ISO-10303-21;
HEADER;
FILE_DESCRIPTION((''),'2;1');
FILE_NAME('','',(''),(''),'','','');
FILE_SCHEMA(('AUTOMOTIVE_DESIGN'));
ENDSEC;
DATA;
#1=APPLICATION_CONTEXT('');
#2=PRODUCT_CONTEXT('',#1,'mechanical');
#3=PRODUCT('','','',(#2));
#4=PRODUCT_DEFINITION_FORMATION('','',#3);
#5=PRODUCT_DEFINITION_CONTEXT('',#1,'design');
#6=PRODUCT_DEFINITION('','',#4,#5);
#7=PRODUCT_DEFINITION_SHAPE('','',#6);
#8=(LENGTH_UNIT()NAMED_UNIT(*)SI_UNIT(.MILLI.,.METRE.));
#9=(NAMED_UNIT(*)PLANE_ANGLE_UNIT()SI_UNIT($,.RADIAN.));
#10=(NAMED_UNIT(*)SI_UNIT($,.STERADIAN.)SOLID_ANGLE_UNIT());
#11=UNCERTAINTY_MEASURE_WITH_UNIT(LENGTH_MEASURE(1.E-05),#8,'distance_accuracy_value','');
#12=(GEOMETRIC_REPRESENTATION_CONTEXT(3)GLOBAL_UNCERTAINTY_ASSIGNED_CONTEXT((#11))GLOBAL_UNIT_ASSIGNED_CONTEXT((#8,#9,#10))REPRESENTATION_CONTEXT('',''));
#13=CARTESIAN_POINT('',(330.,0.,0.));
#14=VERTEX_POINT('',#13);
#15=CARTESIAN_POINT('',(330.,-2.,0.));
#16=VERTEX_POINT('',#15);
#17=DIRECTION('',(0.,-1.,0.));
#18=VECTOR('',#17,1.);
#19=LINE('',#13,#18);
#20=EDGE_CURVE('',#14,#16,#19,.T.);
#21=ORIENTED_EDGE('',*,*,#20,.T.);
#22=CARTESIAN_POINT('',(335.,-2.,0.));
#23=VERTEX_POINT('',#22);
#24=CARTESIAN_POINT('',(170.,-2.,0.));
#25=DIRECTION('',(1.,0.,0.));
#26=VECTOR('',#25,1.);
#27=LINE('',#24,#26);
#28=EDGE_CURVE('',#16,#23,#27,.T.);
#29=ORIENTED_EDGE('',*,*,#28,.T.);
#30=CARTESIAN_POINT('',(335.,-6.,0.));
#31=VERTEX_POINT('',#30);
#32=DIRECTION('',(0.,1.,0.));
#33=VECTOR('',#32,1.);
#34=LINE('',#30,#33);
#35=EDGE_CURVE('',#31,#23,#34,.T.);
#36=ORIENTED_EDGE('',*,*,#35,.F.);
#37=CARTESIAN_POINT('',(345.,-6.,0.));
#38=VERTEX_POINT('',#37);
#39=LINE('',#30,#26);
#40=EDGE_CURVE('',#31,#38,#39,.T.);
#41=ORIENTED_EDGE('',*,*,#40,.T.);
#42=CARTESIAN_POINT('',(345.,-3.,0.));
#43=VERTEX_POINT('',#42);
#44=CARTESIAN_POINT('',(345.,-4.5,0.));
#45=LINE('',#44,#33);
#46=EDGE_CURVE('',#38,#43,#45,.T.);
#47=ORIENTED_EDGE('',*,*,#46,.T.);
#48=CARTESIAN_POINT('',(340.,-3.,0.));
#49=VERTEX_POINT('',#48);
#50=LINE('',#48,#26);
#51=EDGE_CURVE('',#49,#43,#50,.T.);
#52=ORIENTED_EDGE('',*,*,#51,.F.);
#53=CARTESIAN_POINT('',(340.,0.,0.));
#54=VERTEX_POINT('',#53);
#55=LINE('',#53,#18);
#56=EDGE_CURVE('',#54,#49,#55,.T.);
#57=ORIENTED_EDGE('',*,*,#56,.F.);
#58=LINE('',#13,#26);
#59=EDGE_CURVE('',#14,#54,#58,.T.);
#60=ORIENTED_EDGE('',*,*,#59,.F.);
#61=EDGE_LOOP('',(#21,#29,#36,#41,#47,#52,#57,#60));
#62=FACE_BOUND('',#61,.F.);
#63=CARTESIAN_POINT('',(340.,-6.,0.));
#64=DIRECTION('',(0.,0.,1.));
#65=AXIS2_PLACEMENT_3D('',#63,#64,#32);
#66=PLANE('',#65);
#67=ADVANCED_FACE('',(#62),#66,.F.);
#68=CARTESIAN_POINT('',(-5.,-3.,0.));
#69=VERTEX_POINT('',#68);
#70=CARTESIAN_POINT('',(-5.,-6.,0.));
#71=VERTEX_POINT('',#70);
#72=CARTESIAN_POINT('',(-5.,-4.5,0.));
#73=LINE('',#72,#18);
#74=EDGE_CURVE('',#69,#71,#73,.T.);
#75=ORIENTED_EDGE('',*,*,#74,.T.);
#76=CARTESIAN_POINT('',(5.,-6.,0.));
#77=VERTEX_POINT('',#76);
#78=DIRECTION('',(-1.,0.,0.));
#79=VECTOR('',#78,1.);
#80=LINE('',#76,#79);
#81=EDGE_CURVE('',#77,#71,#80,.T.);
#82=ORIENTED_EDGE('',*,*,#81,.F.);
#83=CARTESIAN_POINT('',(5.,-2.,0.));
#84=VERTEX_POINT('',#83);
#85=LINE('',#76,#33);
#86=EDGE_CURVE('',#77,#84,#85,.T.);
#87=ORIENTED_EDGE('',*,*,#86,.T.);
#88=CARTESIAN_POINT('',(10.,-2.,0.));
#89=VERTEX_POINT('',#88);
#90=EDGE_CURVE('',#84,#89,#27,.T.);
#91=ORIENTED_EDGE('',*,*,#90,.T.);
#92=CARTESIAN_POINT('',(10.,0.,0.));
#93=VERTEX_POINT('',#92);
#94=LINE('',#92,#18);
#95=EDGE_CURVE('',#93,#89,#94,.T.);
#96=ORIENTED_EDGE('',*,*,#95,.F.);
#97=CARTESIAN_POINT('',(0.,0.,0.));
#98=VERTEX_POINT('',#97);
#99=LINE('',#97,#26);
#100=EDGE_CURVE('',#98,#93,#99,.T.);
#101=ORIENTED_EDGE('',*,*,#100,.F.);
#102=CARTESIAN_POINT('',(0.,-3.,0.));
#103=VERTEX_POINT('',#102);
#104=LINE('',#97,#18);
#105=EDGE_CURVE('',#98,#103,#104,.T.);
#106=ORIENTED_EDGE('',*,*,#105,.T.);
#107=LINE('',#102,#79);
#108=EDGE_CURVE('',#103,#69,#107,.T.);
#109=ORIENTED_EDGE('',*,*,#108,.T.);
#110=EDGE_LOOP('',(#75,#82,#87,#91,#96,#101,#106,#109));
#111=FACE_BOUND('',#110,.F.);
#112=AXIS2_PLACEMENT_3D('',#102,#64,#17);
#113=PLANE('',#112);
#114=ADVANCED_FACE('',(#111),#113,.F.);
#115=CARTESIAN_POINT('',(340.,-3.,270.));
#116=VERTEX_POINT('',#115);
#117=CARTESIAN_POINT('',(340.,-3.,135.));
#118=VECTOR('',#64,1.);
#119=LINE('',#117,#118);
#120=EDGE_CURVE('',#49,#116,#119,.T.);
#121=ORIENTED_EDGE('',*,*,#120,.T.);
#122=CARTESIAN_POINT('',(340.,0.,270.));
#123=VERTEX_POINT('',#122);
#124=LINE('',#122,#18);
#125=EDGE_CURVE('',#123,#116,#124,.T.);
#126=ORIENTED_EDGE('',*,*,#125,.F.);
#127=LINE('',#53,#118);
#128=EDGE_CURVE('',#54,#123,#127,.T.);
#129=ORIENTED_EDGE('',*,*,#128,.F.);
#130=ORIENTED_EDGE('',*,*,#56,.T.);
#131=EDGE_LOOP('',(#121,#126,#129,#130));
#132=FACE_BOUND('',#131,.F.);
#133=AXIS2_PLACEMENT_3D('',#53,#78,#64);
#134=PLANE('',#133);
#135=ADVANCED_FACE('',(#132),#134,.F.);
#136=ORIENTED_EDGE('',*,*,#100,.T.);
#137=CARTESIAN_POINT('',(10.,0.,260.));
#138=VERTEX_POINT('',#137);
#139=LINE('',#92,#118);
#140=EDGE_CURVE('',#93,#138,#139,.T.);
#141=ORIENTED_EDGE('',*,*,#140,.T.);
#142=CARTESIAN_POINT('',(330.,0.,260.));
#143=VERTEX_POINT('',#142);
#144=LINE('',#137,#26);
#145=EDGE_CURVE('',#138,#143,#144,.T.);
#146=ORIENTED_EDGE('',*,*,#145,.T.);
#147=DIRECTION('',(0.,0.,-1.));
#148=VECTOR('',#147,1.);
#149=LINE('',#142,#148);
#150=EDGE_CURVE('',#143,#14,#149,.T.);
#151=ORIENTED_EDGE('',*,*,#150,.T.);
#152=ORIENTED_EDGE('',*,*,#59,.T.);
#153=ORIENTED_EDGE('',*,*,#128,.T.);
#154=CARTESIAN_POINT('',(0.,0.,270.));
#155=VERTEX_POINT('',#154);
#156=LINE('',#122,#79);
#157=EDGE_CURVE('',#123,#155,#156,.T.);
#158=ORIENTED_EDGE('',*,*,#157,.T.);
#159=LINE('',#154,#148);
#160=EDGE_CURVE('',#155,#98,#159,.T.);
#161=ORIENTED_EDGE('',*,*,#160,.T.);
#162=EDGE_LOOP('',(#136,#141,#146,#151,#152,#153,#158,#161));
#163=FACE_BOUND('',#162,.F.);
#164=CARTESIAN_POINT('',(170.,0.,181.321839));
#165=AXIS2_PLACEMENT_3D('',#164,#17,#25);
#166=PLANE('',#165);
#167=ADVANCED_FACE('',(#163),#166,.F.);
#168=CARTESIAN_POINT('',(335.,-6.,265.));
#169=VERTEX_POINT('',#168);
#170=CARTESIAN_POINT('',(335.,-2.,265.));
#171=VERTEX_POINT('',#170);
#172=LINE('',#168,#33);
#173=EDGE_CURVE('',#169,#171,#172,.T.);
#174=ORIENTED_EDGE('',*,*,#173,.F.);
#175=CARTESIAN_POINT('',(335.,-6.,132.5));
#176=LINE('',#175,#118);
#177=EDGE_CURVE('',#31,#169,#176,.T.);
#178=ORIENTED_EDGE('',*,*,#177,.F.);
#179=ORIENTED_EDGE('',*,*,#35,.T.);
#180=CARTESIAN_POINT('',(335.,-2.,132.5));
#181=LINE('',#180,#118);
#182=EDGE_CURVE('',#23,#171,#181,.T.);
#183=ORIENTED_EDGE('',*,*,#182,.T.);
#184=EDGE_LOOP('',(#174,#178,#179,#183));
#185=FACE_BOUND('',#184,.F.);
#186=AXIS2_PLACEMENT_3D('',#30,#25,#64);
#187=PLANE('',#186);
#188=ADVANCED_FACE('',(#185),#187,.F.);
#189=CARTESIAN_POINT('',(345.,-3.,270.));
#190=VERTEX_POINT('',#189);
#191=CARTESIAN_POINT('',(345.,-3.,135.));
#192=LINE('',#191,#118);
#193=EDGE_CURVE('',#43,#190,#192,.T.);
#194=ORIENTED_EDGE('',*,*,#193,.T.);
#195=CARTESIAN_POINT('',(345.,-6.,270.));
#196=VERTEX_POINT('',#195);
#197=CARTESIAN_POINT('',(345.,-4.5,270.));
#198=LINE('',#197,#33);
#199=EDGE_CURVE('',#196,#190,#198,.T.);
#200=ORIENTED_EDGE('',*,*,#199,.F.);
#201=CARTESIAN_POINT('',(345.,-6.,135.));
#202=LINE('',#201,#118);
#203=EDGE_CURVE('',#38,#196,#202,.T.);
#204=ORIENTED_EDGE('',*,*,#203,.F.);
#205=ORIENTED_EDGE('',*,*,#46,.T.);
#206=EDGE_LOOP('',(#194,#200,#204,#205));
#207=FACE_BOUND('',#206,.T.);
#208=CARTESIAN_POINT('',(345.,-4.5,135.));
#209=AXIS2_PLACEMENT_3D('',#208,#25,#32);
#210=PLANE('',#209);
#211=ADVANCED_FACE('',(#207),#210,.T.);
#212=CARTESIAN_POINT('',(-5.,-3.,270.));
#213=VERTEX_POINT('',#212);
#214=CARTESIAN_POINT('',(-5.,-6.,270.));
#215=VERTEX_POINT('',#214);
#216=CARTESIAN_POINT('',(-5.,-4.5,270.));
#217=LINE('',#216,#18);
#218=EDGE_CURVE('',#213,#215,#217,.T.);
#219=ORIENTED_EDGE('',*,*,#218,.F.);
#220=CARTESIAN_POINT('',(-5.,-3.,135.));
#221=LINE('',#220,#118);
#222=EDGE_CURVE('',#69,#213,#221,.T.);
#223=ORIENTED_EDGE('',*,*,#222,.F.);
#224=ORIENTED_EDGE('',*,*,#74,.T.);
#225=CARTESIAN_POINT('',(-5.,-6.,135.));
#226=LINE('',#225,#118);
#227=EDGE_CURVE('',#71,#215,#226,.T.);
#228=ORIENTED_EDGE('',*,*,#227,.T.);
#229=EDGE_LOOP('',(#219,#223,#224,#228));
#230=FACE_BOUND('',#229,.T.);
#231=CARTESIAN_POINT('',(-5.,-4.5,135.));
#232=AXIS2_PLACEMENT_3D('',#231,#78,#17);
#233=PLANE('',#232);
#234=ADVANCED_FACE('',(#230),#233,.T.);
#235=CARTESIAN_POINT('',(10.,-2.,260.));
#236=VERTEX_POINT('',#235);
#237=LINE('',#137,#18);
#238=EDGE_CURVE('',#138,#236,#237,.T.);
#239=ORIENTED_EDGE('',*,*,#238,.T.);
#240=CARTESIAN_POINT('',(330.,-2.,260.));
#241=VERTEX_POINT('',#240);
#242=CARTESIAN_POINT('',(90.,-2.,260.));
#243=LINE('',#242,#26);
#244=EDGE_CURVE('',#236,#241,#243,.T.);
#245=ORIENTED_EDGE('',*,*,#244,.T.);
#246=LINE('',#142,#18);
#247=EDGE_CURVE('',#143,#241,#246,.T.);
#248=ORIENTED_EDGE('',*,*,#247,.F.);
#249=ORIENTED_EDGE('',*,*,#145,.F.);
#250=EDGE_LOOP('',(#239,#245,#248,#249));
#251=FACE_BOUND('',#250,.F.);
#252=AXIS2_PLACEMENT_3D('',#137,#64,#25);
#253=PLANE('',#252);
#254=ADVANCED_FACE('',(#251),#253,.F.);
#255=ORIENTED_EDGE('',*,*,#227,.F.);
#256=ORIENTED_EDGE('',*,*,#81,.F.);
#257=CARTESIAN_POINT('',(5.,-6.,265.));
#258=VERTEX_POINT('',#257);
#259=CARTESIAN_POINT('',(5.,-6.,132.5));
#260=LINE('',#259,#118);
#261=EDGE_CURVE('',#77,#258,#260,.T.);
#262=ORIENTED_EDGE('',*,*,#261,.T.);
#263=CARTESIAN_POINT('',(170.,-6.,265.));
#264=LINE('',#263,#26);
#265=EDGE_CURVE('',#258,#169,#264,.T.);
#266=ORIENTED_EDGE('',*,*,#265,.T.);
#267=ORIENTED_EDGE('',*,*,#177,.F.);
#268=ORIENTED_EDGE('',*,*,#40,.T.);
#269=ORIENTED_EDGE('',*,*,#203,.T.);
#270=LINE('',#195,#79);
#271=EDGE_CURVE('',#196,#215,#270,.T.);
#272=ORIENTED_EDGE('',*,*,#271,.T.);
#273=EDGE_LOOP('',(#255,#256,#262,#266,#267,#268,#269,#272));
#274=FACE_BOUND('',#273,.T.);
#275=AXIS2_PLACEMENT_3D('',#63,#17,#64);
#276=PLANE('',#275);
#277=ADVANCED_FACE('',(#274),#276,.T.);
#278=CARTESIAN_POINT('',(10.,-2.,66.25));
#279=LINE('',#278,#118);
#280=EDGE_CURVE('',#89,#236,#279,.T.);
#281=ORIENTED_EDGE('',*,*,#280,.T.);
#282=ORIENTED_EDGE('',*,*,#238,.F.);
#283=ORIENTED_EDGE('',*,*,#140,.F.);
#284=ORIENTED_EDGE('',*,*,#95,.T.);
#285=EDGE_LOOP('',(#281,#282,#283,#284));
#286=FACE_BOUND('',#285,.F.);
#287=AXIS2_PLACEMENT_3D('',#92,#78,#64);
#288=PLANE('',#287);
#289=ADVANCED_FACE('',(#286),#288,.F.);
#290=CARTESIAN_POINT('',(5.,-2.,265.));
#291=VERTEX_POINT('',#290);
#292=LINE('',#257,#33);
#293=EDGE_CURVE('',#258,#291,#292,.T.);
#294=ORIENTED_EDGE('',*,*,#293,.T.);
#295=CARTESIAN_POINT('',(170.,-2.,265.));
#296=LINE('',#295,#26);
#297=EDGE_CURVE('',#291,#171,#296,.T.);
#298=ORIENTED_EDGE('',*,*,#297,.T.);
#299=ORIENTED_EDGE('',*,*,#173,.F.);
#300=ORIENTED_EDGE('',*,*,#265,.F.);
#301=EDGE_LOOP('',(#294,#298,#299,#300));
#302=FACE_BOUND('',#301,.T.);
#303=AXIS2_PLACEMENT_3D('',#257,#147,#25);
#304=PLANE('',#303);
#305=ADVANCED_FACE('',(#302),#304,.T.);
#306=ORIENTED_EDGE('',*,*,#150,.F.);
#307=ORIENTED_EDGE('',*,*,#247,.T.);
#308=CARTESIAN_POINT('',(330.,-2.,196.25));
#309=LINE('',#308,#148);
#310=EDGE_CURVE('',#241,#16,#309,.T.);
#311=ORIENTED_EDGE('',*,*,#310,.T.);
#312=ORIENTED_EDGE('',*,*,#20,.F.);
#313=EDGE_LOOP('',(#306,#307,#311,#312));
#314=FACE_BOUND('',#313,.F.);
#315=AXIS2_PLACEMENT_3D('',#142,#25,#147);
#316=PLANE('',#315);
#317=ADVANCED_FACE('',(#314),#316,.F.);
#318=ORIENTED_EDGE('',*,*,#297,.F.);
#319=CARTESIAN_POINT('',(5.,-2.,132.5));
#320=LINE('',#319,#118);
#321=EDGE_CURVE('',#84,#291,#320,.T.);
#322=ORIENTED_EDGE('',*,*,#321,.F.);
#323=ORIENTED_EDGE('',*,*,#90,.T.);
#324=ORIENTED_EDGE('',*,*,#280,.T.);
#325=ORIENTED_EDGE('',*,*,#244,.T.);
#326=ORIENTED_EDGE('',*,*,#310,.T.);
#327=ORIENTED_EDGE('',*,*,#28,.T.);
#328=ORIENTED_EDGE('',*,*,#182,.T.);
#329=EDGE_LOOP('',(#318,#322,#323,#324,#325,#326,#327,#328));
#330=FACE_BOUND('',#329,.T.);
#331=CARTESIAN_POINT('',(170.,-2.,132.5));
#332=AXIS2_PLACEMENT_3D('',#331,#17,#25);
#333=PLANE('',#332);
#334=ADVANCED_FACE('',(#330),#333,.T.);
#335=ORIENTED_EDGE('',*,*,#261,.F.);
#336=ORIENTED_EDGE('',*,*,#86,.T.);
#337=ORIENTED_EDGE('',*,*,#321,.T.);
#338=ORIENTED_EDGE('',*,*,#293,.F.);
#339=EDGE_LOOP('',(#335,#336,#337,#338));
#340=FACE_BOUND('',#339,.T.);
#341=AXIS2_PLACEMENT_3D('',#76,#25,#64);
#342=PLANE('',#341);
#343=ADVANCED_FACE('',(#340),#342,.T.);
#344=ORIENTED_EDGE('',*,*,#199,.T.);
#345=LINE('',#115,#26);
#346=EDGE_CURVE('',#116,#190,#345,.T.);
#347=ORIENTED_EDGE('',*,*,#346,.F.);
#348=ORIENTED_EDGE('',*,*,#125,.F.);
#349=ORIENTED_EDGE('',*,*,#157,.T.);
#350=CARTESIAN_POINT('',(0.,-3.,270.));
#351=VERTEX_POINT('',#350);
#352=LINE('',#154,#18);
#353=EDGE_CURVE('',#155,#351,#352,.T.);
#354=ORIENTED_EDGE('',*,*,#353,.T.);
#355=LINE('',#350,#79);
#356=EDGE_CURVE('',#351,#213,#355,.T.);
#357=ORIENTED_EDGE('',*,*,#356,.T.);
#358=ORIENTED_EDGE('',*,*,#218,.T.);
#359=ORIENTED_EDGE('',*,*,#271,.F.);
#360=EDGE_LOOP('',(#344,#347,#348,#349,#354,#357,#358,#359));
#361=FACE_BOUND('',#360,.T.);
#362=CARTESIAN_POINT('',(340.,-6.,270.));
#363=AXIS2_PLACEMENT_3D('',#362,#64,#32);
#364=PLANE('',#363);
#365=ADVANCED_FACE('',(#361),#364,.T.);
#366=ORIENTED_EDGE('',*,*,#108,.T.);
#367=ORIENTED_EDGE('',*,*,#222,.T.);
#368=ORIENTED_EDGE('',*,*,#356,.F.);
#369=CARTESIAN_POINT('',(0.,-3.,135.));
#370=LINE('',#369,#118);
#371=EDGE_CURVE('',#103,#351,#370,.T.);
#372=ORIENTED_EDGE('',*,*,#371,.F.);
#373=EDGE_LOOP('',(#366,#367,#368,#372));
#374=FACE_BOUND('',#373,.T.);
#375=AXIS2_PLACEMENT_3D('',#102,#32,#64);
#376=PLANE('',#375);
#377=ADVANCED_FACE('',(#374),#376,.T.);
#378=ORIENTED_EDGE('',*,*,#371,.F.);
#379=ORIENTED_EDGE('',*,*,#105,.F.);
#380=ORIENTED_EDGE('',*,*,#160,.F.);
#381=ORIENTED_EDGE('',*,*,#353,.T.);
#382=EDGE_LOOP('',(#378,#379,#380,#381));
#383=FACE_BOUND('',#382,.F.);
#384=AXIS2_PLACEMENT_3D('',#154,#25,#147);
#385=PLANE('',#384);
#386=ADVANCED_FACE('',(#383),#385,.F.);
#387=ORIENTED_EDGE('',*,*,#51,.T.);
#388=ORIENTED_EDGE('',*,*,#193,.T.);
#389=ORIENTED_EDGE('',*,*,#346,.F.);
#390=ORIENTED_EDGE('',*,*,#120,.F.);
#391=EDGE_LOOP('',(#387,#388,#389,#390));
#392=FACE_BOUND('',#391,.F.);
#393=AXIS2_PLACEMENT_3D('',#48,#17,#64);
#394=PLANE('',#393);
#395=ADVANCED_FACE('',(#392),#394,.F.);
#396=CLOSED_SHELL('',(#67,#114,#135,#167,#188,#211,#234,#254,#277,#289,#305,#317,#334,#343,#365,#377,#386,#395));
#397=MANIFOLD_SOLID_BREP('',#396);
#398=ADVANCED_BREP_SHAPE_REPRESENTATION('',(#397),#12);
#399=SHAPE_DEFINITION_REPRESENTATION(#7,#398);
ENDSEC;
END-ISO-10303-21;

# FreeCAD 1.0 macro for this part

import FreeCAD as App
import Part
import Sketcher

V = App.Vector


def add_polygon(sketch, points):
    """Adds a closed chain of lines whose ends are joined by coincident constraints."""
    first, n = sketch.GeometryCount, len(points)
    for a, b in zip(points, points[1:] + points[:1]):
        sketch.addGeometry(Part.LineSegment(App.Vector(*a, 0), App.Vector(*b, 0)), False)
    for i in range(n):
        sketch.addConstraint(Sketcher.Constraint("Coincident", first + i, 2, first + (i + 1) % n, 1))

doc = App.newDocument("Part")
body = doc.addObject("PartDesign::Body", "Body")

sketch1 = body.newObject("Sketcher::SketchObject", "Sketch")
sketch1.AttachmentSupport = (doc.getObject("XZ_Plane"), [""])
sketch1.MapMode = "FlatFace"
add_polygon(sketch1, [(0, 270), (0, 0), (10, 0), (10, 260), (330, 260), (330, 0), (340, 0), (340, 270)])
sketch1.addConstraint(Sketcher.Constraint("Vertical", 0))
sketch1.addConstraint(Sketcher.Constraint("Horizontal", 1))
sketch1.addConstraint(Sketcher.Constraint("Vertical", 2))
sketch1.addConstraint(Sketcher.Constraint("Horizontal", 3))
sketch1.addConstraint(Sketcher.Constraint("Vertical", 4))
sketch1.addConstraint(Sketcher.Constraint("Horizontal", 5))
sketch1.addConstraint(Sketcher.Constraint("Vertical", 6))
sketch1.addConstraint(Sketcher.Constraint("Horizontal", 7))
sketch1.addConstraint(Sketcher.Constraint("Coincident", 0, 2, -1, 1))
sketch1.addConstraint(Sketcher.Constraint("PointOnObject", 4, 2, -1))
sketch1.addConstraint(Sketcher.Constraint("Equal", 1, 5))
sketch1.addConstraint(Sketcher.Constraint("DistanceX", 1, 1, 1, 2, 10.0))
sketch1.addConstraint(Sketcher.Constraint("DistanceX", 3, 1, 3, 2, 320.0))
sketch1.addConstraint(Sketcher.Constraint("DistanceY", 0, 2, 0, 1, 270.0))
sketch1.addConstraint(Sketcher.Constraint("DistanceY", 2, 1, 2, 2, 260.0))
pad1 = body.newObject("PartDesign::Pad", "Pad")
pad1.Profile = sketch1
pad1.Length = 6

sketch2 = body.newObject("Sketcher::SketchObject", "Sketch001")
sketch2.AttachmentSupport = (doc.getObject("XZ_Plane"), [""])
sketch2.MapMode = "FlatFace"
sketch2.AttachmentOffset = App.Placement(V(0, 0, 6), App.Rotation())
add_polygon(sketch2, [(5, 265), (5, 0), (335, 0), (335, 265)])
sketch2.addConstraint(Sketcher.Constraint("Vertical", 0))
sketch2.addConstraint(Sketcher.Constraint("Horizontal", 1))
sketch2.addConstraint(Sketcher.Constraint("Vertical", 2))
sketch2.addConstraint(Sketcher.Constraint("Horizontal", 3))
sketch2.addConstraint(Sketcher.Constraint("PointOnObject", 0, 2, -1))
sketch2.addConstraint(Sketcher.Constraint("DistanceX", 1, 1, 1, 2, 330.0))
sketch2.addConstraint(Sketcher.Constraint("DistanceY", 0, 2, 0, 1, 265.0))
sketch2.addConstraint(Sketcher.Constraint("DistanceX", -1, 1, 0, 2, 5.0))
pocket1 = body.newObject("PartDesign::Pocket", "Pocket")
pocket1.Profile = sketch2
pocket1.Length = 4

sketch3 = body.newObject("Sketcher::SketchObject", "Sketch002")
sketch3.AttachmentSupport = (doc.getObject("YZ_Plane"), [""])
sketch3.MapMode = "FlatFace"
add_polygon(sketch3, [(-3, 270), (-3, 0), (-6, 0), (-6, 270)])
sketch3.addConstraint(Sketcher.Constraint("Vertical", 0))
sketch3.addConstraint(Sketcher.Constraint("Horizontal", 1))
sketch3.addConstraint(Sketcher.Constraint("Vertical", 2))
sketch3.addConstraint(Sketcher.Constraint("Horizontal", 3))
sketch3.addConstraint(Sketcher.Constraint("PointOnObject", 0, 2, -1))
sketch3.addConstraint(Sketcher.Constraint("DistanceX", 1, 2, 1, 1, 3.0))
sketch3.addConstraint(Sketcher.Constraint("DistanceY", 0, 2, 0, 1, 270.0))
sketch3.addConstraint(Sketcher.Constraint("DistanceX", 0, 2, -1, 1, 3.0))
pad2 = body.newObject("PartDesign::Pad", "Pad001")
pad2.Profile = sketch3
pad2.Length = 5
pad2.Reversed = True

sketch4 = body.newObject("Sketcher::SketchObject", "Sketch003")
sketch4.AttachmentSupport = (doc.getObject("YZ_Plane"), [""])
sketch4.MapMode = "FlatFace"
sketch4.AttachmentOffset = App.Placement(V(0, 0, 340), App.Rotation())
add_polygon(sketch4, [(-6, 270), (-6, 0), (-3, 0), (-3, 270)])
sketch4.addConstraint(Sketcher.Constraint("Vertical", 0))
sketch4.addConstraint(Sketcher.Constraint("Horizontal", 1))
sketch4.addConstraint(Sketcher.Constraint("Vertical", 2))
sketch4.addConstraint(Sketcher.Constraint("Horizontal", 3))
sketch4.addConstraint(Sketcher.Constraint("PointOnObject", 0, 2, -1))
sketch4.addConstraint(Sketcher.Constraint("DistanceX", 1, 1, 1, 2, 3.0))
sketch4.addConstraint(Sketcher.Constraint("DistanceY", 0, 2, 0, 1, 270.0))
sketch4.addConstraint(Sketcher.Constraint("DistanceX", 0, 2, -1, 1, 6.0))
pad3 = body.newObject("PartDesign::Pad", "Pad002")
pad3.Profile = sketch4
pad3.Length = 5

doc.recompute()
